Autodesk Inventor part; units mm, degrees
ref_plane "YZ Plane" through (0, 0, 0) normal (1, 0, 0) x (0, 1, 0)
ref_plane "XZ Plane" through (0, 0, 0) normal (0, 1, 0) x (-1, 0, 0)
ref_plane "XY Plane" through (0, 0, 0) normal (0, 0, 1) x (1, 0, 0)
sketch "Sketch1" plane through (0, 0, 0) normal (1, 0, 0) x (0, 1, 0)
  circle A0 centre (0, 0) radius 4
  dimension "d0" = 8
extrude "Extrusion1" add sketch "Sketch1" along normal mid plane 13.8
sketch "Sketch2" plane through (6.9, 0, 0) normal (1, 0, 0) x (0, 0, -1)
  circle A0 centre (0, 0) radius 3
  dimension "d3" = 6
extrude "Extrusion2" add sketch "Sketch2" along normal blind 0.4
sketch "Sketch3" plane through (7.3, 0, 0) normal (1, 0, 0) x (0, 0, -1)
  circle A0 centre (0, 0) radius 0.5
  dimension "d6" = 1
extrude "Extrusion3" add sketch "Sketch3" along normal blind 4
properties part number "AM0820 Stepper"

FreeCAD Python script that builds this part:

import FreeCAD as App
import Part
import Sketcher

V = App.Vector

doc = App.newDocument("Part")
body = doc.addObject("PartDesign::Body", "Body")

sketch1 = doc.addObject("Sketcher::SketchObject", "Sketch")
body.addObject(sketch1)
sketch1.AttachmentSupport = (doc.YZ_Plane, [""])
sketch1.MapMode = "FlatFace"
sketch1.addGeometry(Part.Circle(V(0, 0, 0), V(0, 0, 1), 4), False)
sketch1.addConstraint([
    Sketcher.Constraint("Coincident", 0, 3, -1, 1),
    Sketcher.Constraint("Diameter", 0, 8.0),
])
pad1 = doc.addObject("PartDesign::Pad", "Pad")
body.addObject(pad1)
pad1.Profile = sketch1
pad1.Length = 13.8
pad1.Midplane = True

sketch2 = doc.addObject("Sketcher::SketchObject", "Sketch001")
body.addObject(sketch2)
sketch2.AttachmentSupport = (doc.YZ_Plane, [""])
sketch2.MapMode = "FlatFace"
sketch2.AttachmentOffset = App.Placement(V(0, 0, 6.9), App.Rotation())
sketch2.addGeometry(Part.Circle(V(0, 0, 0), V(0, 0, 1), 3), False)
sketch2.addConstraint([
    Sketcher.Constraint("Coincident", 0, 3, -1, 1),
    Sketcher.Constraint("Diameter", 0, 6.0),
])
pad2 = doc.addObject("PartDesign::Pad", "Pad001")
body.addObject(pad2)
pad2.Profile = sketch2
pad2.Length = 0.4

sketch3 = doc.addObject("Sketcher::SketchObject", "Sketch002")
body.addObject(sketch3)
sketch3.AttachmentSupport = (doc.YZ_Plane, [""])
sketch3.MapMode = "FlatFace"
sketch3.AttachmentOffset = App.Placement(V(0, 0, 7.3), App.Rotation())
sketch3.addGeometry(Part.Circle(V(0, 0, 0), V(0, 0, 1), 0.5), False)
sketch3.addConstraint([
    Sketcher.Constraint("Coincident", 0, 3, -1, 1),
    Sketcher.Constraint("Diameter", 0, 1.0),
])
pad3 = doc.addObject("PartDesign::Pad", "Pad002")
body.addObject(pad3)
pad3.Profile = sketch3
pad3.Length = 4

doc.recompute()
